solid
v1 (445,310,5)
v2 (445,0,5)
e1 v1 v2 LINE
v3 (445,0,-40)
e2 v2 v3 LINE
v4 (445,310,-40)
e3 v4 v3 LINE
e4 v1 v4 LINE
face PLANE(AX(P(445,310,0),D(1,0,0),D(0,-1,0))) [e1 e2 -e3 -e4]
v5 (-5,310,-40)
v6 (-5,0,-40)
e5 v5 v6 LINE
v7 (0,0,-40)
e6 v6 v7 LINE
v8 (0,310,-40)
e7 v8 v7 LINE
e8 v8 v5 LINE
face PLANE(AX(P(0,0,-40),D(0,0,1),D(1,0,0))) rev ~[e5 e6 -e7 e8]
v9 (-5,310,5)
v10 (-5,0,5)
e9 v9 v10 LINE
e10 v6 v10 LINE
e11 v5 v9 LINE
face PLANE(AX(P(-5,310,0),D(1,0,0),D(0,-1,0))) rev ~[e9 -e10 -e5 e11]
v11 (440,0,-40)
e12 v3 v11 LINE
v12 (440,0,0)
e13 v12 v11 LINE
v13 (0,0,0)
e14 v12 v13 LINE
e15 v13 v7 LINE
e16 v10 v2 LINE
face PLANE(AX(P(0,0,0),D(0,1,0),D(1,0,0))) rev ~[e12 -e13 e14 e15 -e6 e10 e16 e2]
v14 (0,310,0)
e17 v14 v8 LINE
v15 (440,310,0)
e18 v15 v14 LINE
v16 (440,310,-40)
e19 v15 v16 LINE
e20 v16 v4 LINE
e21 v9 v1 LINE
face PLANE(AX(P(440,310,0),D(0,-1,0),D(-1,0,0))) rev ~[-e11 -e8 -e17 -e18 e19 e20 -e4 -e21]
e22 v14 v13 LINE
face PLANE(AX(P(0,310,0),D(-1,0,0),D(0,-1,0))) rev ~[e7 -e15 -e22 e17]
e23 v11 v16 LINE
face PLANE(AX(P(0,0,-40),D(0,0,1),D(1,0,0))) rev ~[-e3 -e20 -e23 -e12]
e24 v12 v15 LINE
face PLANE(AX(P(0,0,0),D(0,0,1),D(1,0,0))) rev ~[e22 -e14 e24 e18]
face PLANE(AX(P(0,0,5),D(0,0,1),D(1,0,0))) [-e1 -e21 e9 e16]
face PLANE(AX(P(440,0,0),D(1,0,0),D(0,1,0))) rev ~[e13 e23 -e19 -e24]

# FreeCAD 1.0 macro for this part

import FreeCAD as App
import Part
import Sketcher
from FreeCAD import Vector
Q = App.Units.Quantity


def add_polygon(sketch, points):
    """Adds a closed chain of lines whose ends are joined by coincident constraints."""
    first, n = sketch.GeometryCount, len(points)
    for a, b in zip(points, points[1:] + points[:1]):
        sketch.addGeometry(Part.LineSegment(App.Vector(*a, 0), App.Vector(*b, 0)), False)
    for i in range(n):
        sketch.addConstraint(Sketcher.Constraint("Coincident", first + i, 2, first + (i + 1) % n, 1))

doc = App.newDocument("Part")
body = doc.addObject("PartDesign::Body", "Body")

# Sketch on XY plane
sketch1 = doc.addObject("Sketcher::SketchObject", "Sketch")
body.addObject(sketch1)
sketch1.AttachmentSupport = (doc.XY_Plane, [""])
sketch1.MapMode = "FlatFace"
add_polygon(sketch1, [(-5, 310), (-5, 0), (445, 0), (445, 310)])  # lines 0-3
sketch1.addConstraint(Sketcher.Constraint("Vertical", 0))
sketch1.addConstraint(Sketcher.Constraint("Horizontal", 1))
sketch1.addConstraint(Sketcher.Constraint("Vertical", 2))
sketch1.addConstraint(Sketcher.Constraint("Horizontal", 3))
sketch1.addConstraint(Sketcher.Constraint("PointOnObject", 0, 2, -1))
sketch1.addConstraint(Sketcher.Constraint("DistanceY", 0, 2, 0, 1, Q("310 mm")))
sketch1.addConstraint(Sketcher.Constraint("DistanceX", 0, 2, -1, 1, Q("5 mm")))
sketch1.addConstraint(Sketcher.Constraint("DistanceX", 1, 1, 1, 2, Q("450 mm")))
pad1 = doc.addObject("PartDesign::Pad", "Pad")
body.addObject(pad1)
pad1.Profile = sketch1
pad1.Length = 5

# Sketch on XY plane
sketch2 = doc.addObject("Sketcher::SketchObject", "Sketch001")
body.addObject(sketch2)
sketch2.AttachmentSupport = (doc.XY_Plane, [""])
sketch2.MapMode = "FlatFace"
add_polygon(sketch2, [(-5, 0), (0, 0), (0, 310), (-5, 310)])  # lines 0-3
add_polygon(sketch2, [(440, 310), (440, 0), (445, 0), (445, 310)])  # lines 4-7
sketch2.addConstraint(Sketcher.Constraint("Horizontal", 0))
sketch2.addConstraint(Sketcher.Constraint("Vertical", 1))
sketch2.addConstraint(Sketcher.Constraint("Horizontal", 2))
sketch2.addConstraint(Sketcher.Constraint("Vertical", 3))
sketch2.addConstraint(Sketcher.Constraint("Vertical", 4))
sketch2.addConstraint(Sketcher.Constraint("Horizontal", 5))
sketch2.addConstraint(Sketcher.Constraint("Vertical", 6))
sketch2.addConstraint(Sketcher.Constraint("Horizontal", 7))
sketch2.addConstraint(Sketcher.Constraint("Coincident", 0, 2, -1, 1))
sketch2.addConstraint(Sketcher.Constraint("PointOnObject", 4, 2, -1))
sketch2.addConstraint(Sketcher.Constraint("Horizontal", 2, 2, 6, 2))
sketch2.addConstraint(Sketcher.Constraint("Equal", 2, 5))
sketch2.addConstraint(Sketcher.Constraint("DistanceX", 0, 1, 0, 2, Q("5 mm")))
sketch2.addConstraint(Sketcher.Constraint("DistanceY", 1, 1, 1, 2, Q("310 mm")))
sketch2.addConstraint(Sketcher.Constraint("DistanceX", -1, 1, 4, 2, Q("440 mm")))
pad2 = doc.addObject("PartDesign::Pad", "Pad001")
body.addObject(pad2)
pad2.Profile = sketch2
pad2.Length = 40
pad2.Reversed = True

doc.recompute()
